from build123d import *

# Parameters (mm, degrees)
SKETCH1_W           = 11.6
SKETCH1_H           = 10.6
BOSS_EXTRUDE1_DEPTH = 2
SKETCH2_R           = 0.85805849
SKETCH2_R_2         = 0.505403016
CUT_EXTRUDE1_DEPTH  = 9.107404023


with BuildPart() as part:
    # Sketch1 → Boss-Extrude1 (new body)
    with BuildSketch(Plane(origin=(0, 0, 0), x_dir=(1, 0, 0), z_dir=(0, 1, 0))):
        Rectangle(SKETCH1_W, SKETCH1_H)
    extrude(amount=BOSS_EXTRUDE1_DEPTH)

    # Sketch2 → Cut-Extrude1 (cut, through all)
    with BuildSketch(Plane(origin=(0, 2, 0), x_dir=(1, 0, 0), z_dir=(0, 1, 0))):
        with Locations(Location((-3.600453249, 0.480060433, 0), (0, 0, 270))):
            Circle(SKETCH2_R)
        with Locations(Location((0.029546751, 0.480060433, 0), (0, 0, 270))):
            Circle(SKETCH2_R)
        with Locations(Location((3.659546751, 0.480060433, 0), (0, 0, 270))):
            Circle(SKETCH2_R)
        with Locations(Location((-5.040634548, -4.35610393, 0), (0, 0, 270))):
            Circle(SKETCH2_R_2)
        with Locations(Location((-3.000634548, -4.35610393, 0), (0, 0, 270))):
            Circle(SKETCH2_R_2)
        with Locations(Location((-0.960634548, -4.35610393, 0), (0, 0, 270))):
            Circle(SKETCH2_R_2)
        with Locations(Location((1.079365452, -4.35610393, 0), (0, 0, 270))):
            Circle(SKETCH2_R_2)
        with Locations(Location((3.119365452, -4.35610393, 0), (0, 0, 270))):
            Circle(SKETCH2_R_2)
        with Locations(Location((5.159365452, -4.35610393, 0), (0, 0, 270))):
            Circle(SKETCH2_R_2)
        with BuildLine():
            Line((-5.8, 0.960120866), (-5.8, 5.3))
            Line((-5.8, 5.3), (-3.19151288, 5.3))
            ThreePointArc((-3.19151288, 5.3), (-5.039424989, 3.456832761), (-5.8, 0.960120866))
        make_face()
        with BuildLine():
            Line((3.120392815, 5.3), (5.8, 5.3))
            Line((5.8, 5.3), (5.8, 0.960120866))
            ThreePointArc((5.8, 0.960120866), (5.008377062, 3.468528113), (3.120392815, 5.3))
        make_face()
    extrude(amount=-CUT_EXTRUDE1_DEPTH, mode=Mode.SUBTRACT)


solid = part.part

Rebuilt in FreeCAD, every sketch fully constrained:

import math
import FreeCAD as App
import Part
import Sketcher
from FreeCAD import Vector


def add_polygon(sketch, points):
    """Adds a closed chain of lines whose ends are joined by coincident constraints."""
    first, n = sketch.GeometryCount, len(points)
    for a, b in zip(points, points[1:] + points[:1]):
        sketch.addGeometry(Part.LineSegment(App.Vector(*a, 0), App.Vector(*b, 0)), False)
    for i in range(n):
        sketch.addConstraint(Sketcher.Constraint("Coincident", first + i, 2, first + (i + 1) % n, 1))

doc = App.newDocument("Part")
body = doc.addObject("PartDesign::Body", "Body")

# Sketch on XZ plane
sketch1 = doc.addObject("Sketcher::SketchObject", "Sketch")
body.addObject(sketch1)
sketch1.AttachmentSupport = (doc.XZ_Plane, [""])
sketch1.MapMode = "FlatFace"
add_polygon(sketch1, [(-6, -5), (-6, 5), (6, 5), (6, -5)])  # lines 0-3
sketch1.addConstraint([
    Sketcher.Constraint("Vertical", 0),
    Sketcher.Constraint("Horizontal", 1),
    Sketcher.Constraint("Vertical", 2),
    Sketcher.Constraint("Horizontal", 3),
    Sketcher.Constraint("Symmetric", 0, 2, 2, 2, -1, 1),
    Sketcher.Constraint("DistanceX", 1, 1, 1, 2, 11.6),
    Sketcher.Constraint("DistanceY", 0, 1, 0, 2, 10.6),
])
pad1 = doc.addObject("PartDesign::Pad", "Pad")
body.addObject(pad1)
pad1.Profile = sketch1
pad1.Length = 2
pad1.Reversed = True

# Sketch on XZ plane
sketch2 = doc.addObject("Sketcher::SketchObject", "Sketch001")
body.addObject(sketch2)
sketch2.AttachmentSupport = (doc.XZ_Plane, [""])
sketch2.MapMode = "FlatFace"
sketch2.AttachmentOffset = App.Placement(Vector(0, 0, -2), App.Rotation())
sketch2.addGeometry([
    Part.Circle(Vector(-3.6, -0.5, 0), Vector(0, 0, 1), 0.9),  # 0
    Part.Circle(Vector(0, -0.5, 0), Vector(0, 0, 1), 0.9),  # 1
    Part.Circle(Vector(3.7, -0.5, 0), Vector(0, 0, 1), 0.9),  # 2
    Part.Circle(Vector(-5, 4.4, 0), Vector(0, 0, 1), 0.5),  # 3
    Part.Circle(Vector(-3, 4.4, 0), Vector(0, 0, 1), 0.5),  # 4
    Part.Circle(Vector(-1, 4.4, 0), Vector(0, 0, 1), 0.5),  # 5
    Part.Circle(Vector(1.1, 4.4, 0), Vector(0, 0, 1), 0.5),  # 6
    Part.Circle(Vector(3.1, 4.4, 0), Vector(0, 0, 1), 0.5),  # 7
    Part.Circle(Vector(5.2, 4.4, 0), Vector(0, 0, 1), 0.5),  # 8
    Part.LineSegment(Vector(-5.8, -5.3, 0), Vector(-5.8, -1, 0)),  # 9
    Part.ArcOfCircle(Part.Circle(Vector(-0.4, -0.7, 0), Vector(0, 0, 1), 5.4), math.radians(-177), math.radians(-121)),  # 10
    Part.LineSegment(Vector(-3.2, -5.3, 0), Vector(-5.8, -5.3, 0)),  # 11
    Part.LineSegment(Vector(5.8, -5.3, 0), Vector(3.1, -5.3, 0)),  # 12
    Part.ArcOfCircle(Part.Circle(Vector(0.4, -0.6, 0), Vector(0, 0, 1), 5.4), math.radians(-60), math.radians(-3)),  # 13
    Part.LineSegment(Vector(5.8, -1, 0), Vector(5.8, -5.3, 0)),  # 14
], False)
sketch2.addConstraint([
    Sketcher.Constraint("Coincident", 9, 2, 10, 1),
    Sketcher.Constraint("Coincident", 10, 2, 11, 1),
    Sketcher.Constraint("Coincident", 11, 2, 9, 1),
    Sketcher.Constraint("Coincident", 12, 2, 13, 1),
    Sketcher.Constraint("Coincident", 13, 2, 14, 1),
    Sketcher.Constraint("Coincident", 14, 2, 12, 1),
    Sketcher.Constraint("Vertical", 9),
    Sketcher.Constraint("Horizontal", 11),
    Sketcher.Constraint("Horizontal", 12),
    Sketcher.Constraint("Vertical", 14),
    Sketcher.Constraint("Equal", 0, 1),
    Sketcher.Constraint("Equal", 1, 2),
    Sketcher.Constraint("Equal", 3, 4),
    Sketcher.Constraint("Equal", 4, 5),
    Sketcher.Constraint("Equal", 5, 6),
    Sketcher.Constraint("Equal", 6, 7),
    Sketcher.Constraint("Equal", 7, 8),
    Sketcher.Constraint("Equal", 10, 13),
    Sketcher.Constraint("Symmetric", 9, 2, 13, 2, -2),
    Sketcher.Constraint("Horizontal", 0, 3, 1, 3),
    Sketcher.Constraint("Horizontal", 1, 3, 2, 3),
    Sketcher.Constraint("Horizontal", 3, 3, 4, 3),
    Sketcher.Constraint("Horizontal", 4, 3, 5, 3),
    Sketcher.Constraint("Horizontal", 5, 3, 6, 3),
    Sketcher.Constraint("Horizontal", 6, 3, 7, 3),
    Sketcher.Constraint("Horizontal", 7, 3, 8, 3),
    Sketcher.Constraint("Horizontal", 11, 2, 12, 2),
    Sketcher.Constraint("DistanceX", 9, 2, -1, 1, 5.8),
    Sketcher.Constraint("DistanceY", 10, 2, -1, 1, 5.3),
    Sketcher.Constraint("DistanceX", 0, 3, 1, 3, 3.63),
    Sketcher.Constraint("DistanceX", 1, 3, 2, 3, 3.63),
    Sketcher.Constraint("DistanceX", 3, 3, 4, 3, 2.04),
    Sketcher.Constraint("DistanceX", 4, 3, 5, 3, 2.04),
    Sketcher.Constraint("DistanceX", 5, 3, 6, 3, 2.04),
    Sketcher.Constraint("DistanceX", 6, 3, 7, 3, 2.04),
    Sketcher.Constraint("DistanceX", 7, 3, 8, 3, 2.04),
    Sketcher.Constraint("Diameter", 0, 1.716117),
    Sketcher.Constraint("Diameter", 3, 1.010806),
    Sketcher.Constraint("Radius", 10, 5.369606),
    Sketcher.Constraint("DistanceY", 9, 1, 9, 2, 4.339879),
    Sketcher.Constraint("DistanceX", -1, 1, 13, 3, 0.4395),
    Sketcher.Constraint("DistanceX", 11, 2, 11, 1, 2.608487),
    Sketcher.Constraint("DistanceY", 0, 3, -1, 1, 0.48006),
    Sketcher.Constraint("DistanceX", 3, 3, 0, 3, 1.440181),
    Sketcher.Constraint("DistanceX", 0, 3, 10, 2, 0.40894),
    Sketcher.Constraint("DistanceY", -1, 1, 3, 3, 4.356104),
])
pocket1 = doc.addObject("PartDesign::Pocket", "Pocket")
body.addObject(pocket1)
pocket1.Profile = sketch2
pocket1.Type = "ThroughAll"
pocket1.Reversed = True

doc.recompute()
